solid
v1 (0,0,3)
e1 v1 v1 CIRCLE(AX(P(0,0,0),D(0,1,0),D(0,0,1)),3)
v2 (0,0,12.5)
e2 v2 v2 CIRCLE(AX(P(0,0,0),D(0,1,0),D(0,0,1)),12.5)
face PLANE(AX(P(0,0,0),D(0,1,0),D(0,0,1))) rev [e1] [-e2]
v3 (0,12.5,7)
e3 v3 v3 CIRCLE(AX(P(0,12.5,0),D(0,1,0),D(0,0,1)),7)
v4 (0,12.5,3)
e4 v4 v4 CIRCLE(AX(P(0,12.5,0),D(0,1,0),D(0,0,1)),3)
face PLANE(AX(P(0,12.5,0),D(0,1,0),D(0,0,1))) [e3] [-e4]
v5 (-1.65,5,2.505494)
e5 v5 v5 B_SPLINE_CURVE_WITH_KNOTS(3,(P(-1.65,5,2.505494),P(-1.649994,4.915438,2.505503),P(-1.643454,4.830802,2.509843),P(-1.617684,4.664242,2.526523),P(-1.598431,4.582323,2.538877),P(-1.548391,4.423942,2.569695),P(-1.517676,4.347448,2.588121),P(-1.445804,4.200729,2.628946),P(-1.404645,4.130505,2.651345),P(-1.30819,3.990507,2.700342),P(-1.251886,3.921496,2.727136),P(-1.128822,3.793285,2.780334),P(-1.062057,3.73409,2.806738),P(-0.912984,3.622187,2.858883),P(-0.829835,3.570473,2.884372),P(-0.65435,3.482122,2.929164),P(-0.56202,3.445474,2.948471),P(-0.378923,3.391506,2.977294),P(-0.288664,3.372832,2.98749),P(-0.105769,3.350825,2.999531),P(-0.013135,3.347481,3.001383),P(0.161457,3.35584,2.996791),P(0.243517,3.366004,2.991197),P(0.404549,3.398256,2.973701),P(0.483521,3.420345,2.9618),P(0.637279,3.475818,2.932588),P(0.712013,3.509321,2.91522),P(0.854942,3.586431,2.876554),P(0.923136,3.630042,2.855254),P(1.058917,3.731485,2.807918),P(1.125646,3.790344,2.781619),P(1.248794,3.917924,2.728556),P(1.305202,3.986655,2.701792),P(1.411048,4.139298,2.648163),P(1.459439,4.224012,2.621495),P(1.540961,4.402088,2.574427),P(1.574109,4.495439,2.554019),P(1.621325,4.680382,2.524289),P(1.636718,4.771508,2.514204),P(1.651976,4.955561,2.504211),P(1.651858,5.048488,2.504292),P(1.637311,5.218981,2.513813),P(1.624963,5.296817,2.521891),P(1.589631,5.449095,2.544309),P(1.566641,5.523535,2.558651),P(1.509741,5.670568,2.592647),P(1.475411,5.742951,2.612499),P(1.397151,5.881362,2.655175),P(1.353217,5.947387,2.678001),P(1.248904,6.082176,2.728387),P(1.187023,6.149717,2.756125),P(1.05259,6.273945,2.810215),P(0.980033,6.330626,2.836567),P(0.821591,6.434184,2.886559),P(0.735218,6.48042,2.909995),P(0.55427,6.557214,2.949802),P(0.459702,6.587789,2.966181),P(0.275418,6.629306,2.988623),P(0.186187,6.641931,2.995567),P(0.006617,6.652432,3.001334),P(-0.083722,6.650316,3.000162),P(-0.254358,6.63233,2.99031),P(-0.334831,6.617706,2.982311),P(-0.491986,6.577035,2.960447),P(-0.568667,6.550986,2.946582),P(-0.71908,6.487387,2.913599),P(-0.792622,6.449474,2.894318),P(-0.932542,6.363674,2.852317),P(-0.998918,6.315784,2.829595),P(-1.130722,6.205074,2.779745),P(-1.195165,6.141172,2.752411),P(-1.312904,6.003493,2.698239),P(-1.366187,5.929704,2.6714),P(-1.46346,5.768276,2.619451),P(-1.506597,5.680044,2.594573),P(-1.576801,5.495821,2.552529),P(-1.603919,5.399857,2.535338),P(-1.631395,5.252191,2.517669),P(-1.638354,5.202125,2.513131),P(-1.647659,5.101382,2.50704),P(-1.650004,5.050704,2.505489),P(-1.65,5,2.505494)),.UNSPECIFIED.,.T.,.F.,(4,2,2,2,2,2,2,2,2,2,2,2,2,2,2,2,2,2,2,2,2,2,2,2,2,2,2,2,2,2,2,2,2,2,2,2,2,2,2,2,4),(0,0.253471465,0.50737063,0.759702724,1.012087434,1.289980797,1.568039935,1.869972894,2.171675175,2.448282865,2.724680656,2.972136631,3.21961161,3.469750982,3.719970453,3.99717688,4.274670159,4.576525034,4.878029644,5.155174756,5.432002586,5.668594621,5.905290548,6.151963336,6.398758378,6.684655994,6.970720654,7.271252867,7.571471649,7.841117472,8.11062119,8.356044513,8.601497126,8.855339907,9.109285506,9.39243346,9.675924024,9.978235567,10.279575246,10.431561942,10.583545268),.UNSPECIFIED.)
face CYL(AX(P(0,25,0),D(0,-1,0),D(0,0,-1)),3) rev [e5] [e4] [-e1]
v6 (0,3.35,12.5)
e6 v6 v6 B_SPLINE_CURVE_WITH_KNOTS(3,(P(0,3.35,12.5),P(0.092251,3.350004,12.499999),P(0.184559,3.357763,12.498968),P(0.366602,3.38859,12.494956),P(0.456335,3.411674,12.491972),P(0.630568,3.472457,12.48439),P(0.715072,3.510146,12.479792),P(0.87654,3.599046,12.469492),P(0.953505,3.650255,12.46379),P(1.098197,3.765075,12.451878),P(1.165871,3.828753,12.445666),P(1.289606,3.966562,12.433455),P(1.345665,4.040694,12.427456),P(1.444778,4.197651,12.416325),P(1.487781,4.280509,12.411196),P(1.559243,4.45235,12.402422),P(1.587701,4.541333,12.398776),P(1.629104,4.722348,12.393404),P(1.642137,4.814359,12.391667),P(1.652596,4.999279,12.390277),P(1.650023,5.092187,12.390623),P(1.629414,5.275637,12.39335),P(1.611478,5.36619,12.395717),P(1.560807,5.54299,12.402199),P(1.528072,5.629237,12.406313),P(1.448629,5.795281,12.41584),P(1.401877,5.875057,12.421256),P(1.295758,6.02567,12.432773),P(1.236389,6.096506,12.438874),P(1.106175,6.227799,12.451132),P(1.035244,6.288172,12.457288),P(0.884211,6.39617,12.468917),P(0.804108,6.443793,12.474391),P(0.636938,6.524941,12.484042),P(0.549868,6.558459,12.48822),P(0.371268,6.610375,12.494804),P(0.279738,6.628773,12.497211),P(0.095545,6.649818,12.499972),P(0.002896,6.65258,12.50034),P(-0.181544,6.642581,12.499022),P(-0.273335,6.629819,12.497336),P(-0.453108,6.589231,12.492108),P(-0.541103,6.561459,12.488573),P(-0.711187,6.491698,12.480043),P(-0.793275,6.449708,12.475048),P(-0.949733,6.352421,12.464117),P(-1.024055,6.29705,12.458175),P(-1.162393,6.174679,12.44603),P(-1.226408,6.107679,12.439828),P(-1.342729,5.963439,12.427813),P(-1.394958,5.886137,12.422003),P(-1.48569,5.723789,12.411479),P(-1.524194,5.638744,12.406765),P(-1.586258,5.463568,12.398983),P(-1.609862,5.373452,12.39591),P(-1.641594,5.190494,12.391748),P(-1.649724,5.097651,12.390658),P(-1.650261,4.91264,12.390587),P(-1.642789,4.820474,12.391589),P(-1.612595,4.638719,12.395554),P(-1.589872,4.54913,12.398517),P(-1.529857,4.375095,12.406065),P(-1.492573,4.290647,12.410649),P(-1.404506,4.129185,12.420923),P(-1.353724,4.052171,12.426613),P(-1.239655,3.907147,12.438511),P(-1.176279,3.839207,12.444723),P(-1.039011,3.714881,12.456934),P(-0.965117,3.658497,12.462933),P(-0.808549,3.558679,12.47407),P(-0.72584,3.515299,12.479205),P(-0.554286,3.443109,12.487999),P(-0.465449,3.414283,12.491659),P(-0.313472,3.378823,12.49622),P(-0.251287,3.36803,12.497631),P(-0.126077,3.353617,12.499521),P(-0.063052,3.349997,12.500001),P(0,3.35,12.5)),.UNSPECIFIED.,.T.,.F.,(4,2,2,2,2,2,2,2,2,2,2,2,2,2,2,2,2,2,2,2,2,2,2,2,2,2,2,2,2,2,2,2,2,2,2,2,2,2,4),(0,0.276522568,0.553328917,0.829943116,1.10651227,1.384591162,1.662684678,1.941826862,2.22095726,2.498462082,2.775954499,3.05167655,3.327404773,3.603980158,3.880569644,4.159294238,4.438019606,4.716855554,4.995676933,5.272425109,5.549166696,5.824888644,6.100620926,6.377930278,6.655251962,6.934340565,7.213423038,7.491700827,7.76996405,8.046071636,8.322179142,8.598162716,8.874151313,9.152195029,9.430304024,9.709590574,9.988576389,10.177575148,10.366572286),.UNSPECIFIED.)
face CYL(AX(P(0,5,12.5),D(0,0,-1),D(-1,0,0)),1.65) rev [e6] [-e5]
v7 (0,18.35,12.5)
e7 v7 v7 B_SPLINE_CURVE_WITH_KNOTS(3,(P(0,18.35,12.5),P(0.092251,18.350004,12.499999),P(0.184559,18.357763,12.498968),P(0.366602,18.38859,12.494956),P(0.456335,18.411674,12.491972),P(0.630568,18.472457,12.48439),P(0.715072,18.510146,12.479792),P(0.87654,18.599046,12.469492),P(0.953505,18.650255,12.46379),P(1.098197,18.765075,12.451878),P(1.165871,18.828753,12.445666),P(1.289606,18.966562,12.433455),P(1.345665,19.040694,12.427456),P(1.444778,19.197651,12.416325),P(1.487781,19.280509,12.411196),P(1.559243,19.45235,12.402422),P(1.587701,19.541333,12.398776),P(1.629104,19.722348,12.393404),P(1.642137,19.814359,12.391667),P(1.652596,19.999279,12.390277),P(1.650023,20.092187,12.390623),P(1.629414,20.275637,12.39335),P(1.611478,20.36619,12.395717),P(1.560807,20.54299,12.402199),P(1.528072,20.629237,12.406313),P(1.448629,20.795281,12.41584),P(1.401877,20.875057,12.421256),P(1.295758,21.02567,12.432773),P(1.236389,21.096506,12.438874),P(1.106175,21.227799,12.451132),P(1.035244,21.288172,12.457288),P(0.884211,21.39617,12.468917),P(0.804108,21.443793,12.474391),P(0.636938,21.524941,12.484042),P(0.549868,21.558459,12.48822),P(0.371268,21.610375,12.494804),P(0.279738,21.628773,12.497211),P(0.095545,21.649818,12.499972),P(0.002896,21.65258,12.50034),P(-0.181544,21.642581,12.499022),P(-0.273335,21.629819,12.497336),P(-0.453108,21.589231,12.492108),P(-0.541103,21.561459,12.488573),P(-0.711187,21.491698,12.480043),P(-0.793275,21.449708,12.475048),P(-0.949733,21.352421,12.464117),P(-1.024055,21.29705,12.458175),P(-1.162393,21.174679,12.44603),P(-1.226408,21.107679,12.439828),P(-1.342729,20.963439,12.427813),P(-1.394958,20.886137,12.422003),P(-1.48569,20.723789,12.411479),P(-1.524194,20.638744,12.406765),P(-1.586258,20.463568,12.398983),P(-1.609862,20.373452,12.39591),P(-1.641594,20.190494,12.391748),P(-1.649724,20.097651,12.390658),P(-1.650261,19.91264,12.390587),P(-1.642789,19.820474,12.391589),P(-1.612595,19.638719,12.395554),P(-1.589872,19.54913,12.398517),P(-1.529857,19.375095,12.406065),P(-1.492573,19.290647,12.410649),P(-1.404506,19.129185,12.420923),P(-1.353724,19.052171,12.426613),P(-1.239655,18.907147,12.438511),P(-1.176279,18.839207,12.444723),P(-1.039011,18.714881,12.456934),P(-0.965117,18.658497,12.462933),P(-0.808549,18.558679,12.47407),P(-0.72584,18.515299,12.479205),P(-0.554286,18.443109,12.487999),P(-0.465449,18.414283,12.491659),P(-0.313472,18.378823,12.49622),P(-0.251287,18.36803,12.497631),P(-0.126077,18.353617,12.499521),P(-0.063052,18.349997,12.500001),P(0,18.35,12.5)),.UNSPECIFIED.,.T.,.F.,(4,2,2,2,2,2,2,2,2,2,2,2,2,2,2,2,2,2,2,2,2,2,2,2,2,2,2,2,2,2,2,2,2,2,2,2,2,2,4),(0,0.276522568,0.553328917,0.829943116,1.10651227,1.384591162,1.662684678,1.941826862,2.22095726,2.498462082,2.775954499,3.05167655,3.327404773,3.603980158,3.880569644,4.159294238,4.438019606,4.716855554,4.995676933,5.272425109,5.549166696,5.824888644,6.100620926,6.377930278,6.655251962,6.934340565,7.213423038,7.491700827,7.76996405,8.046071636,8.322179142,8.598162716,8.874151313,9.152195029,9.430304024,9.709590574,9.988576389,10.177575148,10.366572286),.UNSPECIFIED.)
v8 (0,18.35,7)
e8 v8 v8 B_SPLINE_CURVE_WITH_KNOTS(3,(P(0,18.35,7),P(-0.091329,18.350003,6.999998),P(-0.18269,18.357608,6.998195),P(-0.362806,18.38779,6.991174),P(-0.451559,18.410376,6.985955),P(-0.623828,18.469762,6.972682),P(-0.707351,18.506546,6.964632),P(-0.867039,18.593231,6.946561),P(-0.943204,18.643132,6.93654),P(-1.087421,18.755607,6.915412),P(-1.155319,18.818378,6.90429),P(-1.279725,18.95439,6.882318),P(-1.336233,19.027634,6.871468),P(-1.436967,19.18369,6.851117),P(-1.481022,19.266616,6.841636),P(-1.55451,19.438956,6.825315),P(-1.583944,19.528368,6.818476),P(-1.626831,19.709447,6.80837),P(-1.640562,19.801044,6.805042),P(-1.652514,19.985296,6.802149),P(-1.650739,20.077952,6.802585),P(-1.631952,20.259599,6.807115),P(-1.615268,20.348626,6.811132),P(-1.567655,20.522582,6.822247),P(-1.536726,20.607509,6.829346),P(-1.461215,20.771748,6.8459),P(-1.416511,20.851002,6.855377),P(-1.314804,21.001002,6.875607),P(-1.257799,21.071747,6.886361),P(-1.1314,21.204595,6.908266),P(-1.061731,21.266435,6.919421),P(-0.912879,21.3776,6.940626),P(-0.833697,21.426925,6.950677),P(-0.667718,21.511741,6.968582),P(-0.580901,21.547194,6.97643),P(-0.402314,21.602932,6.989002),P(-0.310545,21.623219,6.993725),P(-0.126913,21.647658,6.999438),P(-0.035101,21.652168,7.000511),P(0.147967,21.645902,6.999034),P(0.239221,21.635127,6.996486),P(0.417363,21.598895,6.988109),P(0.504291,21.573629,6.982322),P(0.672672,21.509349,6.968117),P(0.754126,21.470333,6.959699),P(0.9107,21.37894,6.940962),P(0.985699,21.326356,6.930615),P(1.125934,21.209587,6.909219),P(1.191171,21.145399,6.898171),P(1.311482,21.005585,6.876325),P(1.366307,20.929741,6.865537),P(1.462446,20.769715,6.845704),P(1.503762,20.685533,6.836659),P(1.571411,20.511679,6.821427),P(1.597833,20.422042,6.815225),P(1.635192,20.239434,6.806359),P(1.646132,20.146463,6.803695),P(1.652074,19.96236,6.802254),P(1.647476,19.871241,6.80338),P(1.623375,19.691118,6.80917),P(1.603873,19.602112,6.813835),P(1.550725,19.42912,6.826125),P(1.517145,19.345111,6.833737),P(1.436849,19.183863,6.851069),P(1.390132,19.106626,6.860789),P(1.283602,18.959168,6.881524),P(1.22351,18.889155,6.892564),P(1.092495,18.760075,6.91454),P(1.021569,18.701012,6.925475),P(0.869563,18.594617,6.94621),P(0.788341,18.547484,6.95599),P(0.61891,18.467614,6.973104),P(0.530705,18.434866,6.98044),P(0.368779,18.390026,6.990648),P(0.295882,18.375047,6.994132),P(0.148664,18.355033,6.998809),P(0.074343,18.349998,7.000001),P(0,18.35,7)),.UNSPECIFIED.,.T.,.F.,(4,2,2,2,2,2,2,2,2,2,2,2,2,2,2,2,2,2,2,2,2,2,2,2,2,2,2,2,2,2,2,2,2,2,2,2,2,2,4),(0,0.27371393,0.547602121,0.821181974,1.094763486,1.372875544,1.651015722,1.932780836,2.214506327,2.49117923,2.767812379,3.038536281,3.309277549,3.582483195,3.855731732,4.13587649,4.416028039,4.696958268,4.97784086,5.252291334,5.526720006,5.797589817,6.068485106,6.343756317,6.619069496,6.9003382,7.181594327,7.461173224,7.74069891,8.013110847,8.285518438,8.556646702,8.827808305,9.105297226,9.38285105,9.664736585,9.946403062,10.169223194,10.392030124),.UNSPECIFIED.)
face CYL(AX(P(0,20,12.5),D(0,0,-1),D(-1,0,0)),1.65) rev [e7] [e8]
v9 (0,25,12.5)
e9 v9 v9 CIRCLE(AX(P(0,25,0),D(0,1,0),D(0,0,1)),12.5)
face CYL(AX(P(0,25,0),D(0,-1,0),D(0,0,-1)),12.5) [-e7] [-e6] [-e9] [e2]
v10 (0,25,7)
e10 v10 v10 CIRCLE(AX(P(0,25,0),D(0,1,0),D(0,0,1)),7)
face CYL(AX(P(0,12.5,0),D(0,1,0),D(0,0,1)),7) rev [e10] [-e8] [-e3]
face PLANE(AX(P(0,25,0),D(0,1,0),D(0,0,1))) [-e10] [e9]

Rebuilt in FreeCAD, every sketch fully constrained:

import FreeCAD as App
import Part
import Sketcher
Q = App.Units.Quantity

doc = App.newDocument("Part")
body = doc.addObject("PartDesign::Body", "Body")

# Sketch on XZ plane
sketch1 = body.newObject("Sketcher::SketchObject", "Sketch")
sketch1.AttachmentSupport = (doc.getObject("XZ_Plane"), [""])
sketch1.MapMode = "FlatFace"
sketch1.addGeometry(Part.Circle(App.Vector(0, 0, 0), App.Vector(0, 0, 1), 12.5), False)
sketch1.addGeometry(Part.Circle(App.Vector(0, 0, 0), App.Vector(0, 0, 1), 3), False)
sketch1.addConstraint(Sketcher.Constraint("Coincident", 0, 3, -1, 1))
sketch1.addConstraint(Sketcher.Constraint("Coincident", 1, 3, -1, 1))
sketch1.addConstraint(Sketcher.Constraint("Diameter", 0, Q("25 mm")))
sketch1.addConstraint(Sketcher.Constraint("Diameter", 1, Q("6 mm")))
pad1 = body.newObject("PartDesign::Pad", "Pad")
pad1.Profile = sketch1
pad1.Length = 25
pad1.Reversed = True

# Sketch on XZ plane
sketch2 = body.newObject("Sketcher::SketchObject", "Sketch001")
sketch2.AttachmentSupport = (doc.getObject("XZ_Plane"), [""])
sketch2.MapMode = "FlatFace"
sketch2.AttachmentOffset = App.Placement(App.Vector(0, 0, -25), App.Rotation())
sketch2.addGeometry(Part.Circle(App.Vector(0, 0, 0), App.Vector(0, 0, 1), 7), False)
sketch2.addConstraint(Sketcher.Constraint("Coincident", 0, 3, -1, 1))
sketch2.addConstraint(Sketcher.Constraint("Diameter", 0, Q("14 mm")))
pocket1 = body.newObject("PartDesign::Pocket", "Pocket")
pocket1.Profile = sketch2
pocket1.Length = 12.5
pocket1.Reversed = True

# Sketch on XY plane
sketch3 = body.newObject("Sketcher::SketchObject", "Sketch002")
sketch3.AttachmentSupport = (doc.getObject("XY_Plane"), [""])
sketch3.MapMode = "FlatFace"
sketch3.addGeometry(Part.Circle(App.Vector(0, 5, 0), App.Vector(0, 0, 1), 1.6), False)
sketch3.addGeometry(Part.Circle(App.Vector(0, 20, 0), App.Vector(0, 0, 1), 1.6), False)
sketch3.addConstraint(Sketcher.Constraint("Equal", 0, 1))
sketch3.addConstraint(Sketcher.Constraint("PointOnObject", 0, 3, -2))
sketch3.addConstraint(Sketcher.Constraint("PointOnObject", 1, 3, -2))
sketch3.addConstraint(Sketcher.Constraint("Diameter", 0, Q("3.3 mm")))
sketch3.addConstraint(Sketcher.Constraint("DistanceY", -1, 1, 0, 3, Q("5 mm")))
sketch3.addConstraint(Sketcher.Constraint("DistanceY", -1, 1, 1, 3, Q("20 mm")))
pocket2 = body.newObject("PartDesign::Pocket", "Pocket001")
pocket2.Profile = sketch3
pocket2.Type = "ThroughAll"
pocket2.Reversed = True

doc.recompute()
